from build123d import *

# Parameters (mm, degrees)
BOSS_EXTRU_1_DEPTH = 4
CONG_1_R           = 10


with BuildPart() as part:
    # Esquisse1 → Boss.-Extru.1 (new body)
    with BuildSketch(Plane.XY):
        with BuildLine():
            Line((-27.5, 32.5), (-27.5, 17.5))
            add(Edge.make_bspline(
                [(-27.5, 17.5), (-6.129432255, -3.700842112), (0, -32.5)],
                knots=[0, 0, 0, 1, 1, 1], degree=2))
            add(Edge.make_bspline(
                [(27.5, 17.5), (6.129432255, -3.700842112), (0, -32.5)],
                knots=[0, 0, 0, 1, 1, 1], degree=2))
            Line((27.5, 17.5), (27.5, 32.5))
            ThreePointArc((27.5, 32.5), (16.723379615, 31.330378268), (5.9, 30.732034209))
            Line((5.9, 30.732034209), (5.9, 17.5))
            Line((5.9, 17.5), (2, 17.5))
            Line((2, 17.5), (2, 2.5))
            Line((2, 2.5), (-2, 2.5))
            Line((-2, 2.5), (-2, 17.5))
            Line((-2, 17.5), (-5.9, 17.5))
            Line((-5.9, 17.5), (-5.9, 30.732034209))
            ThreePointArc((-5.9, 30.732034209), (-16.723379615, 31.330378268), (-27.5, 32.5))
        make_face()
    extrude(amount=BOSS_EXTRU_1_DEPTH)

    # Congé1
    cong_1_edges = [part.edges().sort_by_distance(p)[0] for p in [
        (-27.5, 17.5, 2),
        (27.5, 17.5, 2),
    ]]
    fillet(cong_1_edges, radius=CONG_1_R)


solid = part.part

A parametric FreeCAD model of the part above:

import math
import FreeCAD as App
import Part
import Sketcher
Q = App.Units.Quantity


def edges_at(feature, points):
    """Names of the edges that pass closest to the given points."""
    edges = feature.Shape.Edges
    near = lambda p: min(range(len(edges)), key=lambda i: edges[i].distToShape(Part.Vertex(*p))[0])
    return sorted({f"Edge{near(p) + 1}" for p in points})

doc = App.newDocument("Part")
body = doc.addObject("PartDesign::Body", "Body")

# Sketch on XY plane
sketch1 = body.newObject("Sketcher::SketchObject", "Sketch")
sketch1.AttachmentSupport = (doc.getObject("XY_Plane"), [""])
sketch1.MapMode = "FlatFace"
sketch1.addGeometry([
    Part.LineSegment(App.Vector(-27.5, 32.5, 0), App.Vector(-27.5, 17.5, 0)),  # 0
    Part.BSplineCurve([App.Vector(-27.5, 17.5, 0), App.Vector(-6.129432, -3.700842, 0), App.Vector(0, -32.5, 0)], [3, 3], [0, 1], False, 2, [1, 1, 1], False),  # 1
    Part.BSplineCurve([App.Vector(27.5, 17.5, 0), App.Vector(6.129432, -3.700842, 0), App.Vector(0, -32.5, 0)], [3, 3], [0, 1], False, 2, [1, 1, 1], False),  # 2
    Part.LineSegment(App.Vector(27.5, 17.5, 0), App.Vector(27.5, 32.5, 0)),  # 3
    Part.ArcOfCircle(Part.Circle(App.Vector(0, 235.647114, 0), App.Vector(0, 0, 1), 205), math.radians(-88.350772), math.radians(-82.29074)),  # 4
    Part.LineSegment(App.Vector(5.9, 30.732034, 0), App.Vector(5.9, 17.5, 0)),  # 5
    Part.LineSegment(App.Vector(5.9, 17.5, 0), App.Vector(2, 17.5, 0)),  # 6
    Part.LineSegment(App.Vector(2, 17.5, 0), App.Vector(2, 2.5, 0)),  # 7
    Part.LineSegment(App.Vector(2, 2.5, 0), App.Vector(-2, 2.5, 0)),  # 8
    Part.LineSegment(App.Vector(-2, 2.5, 0), App.Vector(-2, 17.5, 0)),  # 9
    Part.LineSegment(App.Vector(-2, 17.5, 0), App.Vector(-5.9, 17.5, 0)),  # 10
    Part.LineSegment(App.Vector(-5.9, 17.5, 0), App.Vector(-5.9, 30.732034, 0)),  # 11
    Part.ArcOfCircle(Part.Circle(App.Vector(0, 235.647114, 0), App.Vector(0, 0, 1), 205), math.radians(-97.70926), math.radians(-91.649228)),  # 12
], False)
sketch1.addConstraint([
    Sketcher.Constraint("Block", 1),
    Sketcher.Constraint("Block", 2),
    Sketcher.Constraint("Coincident", 0, 2, 1, 1),
    Sketcher.Constraint("Coincident", 2, 1, 3, 1),
    Sketcher.Constraint("Coincident", 3, 2, 4, 2),
    Sketcher.Constraint("Coincident", 4, 1, 5, 1),
    Sketcher.Constraint("Coincident", 5, 2, 6, 1),
    Sketcher.Constraint("Coincident", 6, 2, 7, 1),
    Sketcher.Constraint("Coincident", 7, 2, 8, 1),
    Sketcher.Constraint("Coincident", 8, 2, 9, 1),
    Sketcher.Constraint("Coincident", 9, 2, 10, 1),
    Sketcher.Constraint("Coincident", 10, 2, 11, 1),
    Sketcher.Constraint("Coincident", 11, 2, 12, 2),
    Sketcher.Constraint("Coincident", 12, 1, 0, 1),
    Sketcher.Constraint("Vertical", 0),
    Sketcher.Constraint("Vertical", 3),
    Sketcher.Constraint("Vertical", 5),
    Sketcher.Constraint("Horizontal", 6),
    Sketcher.Constraint("Vertical", 7),
    Sketcher.Constraint("Horizontal", 8),
    Sketcher.Constraint("Vertical", 9),
    Sketcher.Constraint("Horizontal", 10),
    Sketcher.Constraint("Vertical", 11),
    Sketcher.Constraint("Coincident", 12, 3, 4, 3),
    Sketcher.Constraint("Equal", 4, 12),
    Sketcher.Constraint("Symmetric", 6, 2, 9, 2, -2),
    Sketcher.Constraint("Symmetric", 4, 1, 11, 2, -2),
    Sketcher.Constraint("Horizontal", 0, 2, 5, 2),
    Sketcher.Constraint("Equal", 3, 7),
    Sketcher.Constraint("Radius", 4, Q("205 mm")),
    Sketcher.Constraint("DistanceX", 8, 2, 8, 1, Q("4 mm")),
    Sketcher.Constraint("DistanceY", 0, 2, 0, 1, Q("15 mm")),
    Sketcher.Constraint("DistanceX", 6, 2, 6, 1, Q("3.9 mm")),
])
pad1 = body.newObject("PartDesign::Pad", "Pad")
pad1.Profile = sketch1
pad1.Length = 4
doc.recompute()

fillet = body.newObject("PartDesign::Fillet", "Fillet")
fillet.Base = (pad1, edges_at(pad1, [(-27.5, 17.5, 2), (27.5, 17.5, 2)]))
fillet.Radius = 10

doc.recompute()
